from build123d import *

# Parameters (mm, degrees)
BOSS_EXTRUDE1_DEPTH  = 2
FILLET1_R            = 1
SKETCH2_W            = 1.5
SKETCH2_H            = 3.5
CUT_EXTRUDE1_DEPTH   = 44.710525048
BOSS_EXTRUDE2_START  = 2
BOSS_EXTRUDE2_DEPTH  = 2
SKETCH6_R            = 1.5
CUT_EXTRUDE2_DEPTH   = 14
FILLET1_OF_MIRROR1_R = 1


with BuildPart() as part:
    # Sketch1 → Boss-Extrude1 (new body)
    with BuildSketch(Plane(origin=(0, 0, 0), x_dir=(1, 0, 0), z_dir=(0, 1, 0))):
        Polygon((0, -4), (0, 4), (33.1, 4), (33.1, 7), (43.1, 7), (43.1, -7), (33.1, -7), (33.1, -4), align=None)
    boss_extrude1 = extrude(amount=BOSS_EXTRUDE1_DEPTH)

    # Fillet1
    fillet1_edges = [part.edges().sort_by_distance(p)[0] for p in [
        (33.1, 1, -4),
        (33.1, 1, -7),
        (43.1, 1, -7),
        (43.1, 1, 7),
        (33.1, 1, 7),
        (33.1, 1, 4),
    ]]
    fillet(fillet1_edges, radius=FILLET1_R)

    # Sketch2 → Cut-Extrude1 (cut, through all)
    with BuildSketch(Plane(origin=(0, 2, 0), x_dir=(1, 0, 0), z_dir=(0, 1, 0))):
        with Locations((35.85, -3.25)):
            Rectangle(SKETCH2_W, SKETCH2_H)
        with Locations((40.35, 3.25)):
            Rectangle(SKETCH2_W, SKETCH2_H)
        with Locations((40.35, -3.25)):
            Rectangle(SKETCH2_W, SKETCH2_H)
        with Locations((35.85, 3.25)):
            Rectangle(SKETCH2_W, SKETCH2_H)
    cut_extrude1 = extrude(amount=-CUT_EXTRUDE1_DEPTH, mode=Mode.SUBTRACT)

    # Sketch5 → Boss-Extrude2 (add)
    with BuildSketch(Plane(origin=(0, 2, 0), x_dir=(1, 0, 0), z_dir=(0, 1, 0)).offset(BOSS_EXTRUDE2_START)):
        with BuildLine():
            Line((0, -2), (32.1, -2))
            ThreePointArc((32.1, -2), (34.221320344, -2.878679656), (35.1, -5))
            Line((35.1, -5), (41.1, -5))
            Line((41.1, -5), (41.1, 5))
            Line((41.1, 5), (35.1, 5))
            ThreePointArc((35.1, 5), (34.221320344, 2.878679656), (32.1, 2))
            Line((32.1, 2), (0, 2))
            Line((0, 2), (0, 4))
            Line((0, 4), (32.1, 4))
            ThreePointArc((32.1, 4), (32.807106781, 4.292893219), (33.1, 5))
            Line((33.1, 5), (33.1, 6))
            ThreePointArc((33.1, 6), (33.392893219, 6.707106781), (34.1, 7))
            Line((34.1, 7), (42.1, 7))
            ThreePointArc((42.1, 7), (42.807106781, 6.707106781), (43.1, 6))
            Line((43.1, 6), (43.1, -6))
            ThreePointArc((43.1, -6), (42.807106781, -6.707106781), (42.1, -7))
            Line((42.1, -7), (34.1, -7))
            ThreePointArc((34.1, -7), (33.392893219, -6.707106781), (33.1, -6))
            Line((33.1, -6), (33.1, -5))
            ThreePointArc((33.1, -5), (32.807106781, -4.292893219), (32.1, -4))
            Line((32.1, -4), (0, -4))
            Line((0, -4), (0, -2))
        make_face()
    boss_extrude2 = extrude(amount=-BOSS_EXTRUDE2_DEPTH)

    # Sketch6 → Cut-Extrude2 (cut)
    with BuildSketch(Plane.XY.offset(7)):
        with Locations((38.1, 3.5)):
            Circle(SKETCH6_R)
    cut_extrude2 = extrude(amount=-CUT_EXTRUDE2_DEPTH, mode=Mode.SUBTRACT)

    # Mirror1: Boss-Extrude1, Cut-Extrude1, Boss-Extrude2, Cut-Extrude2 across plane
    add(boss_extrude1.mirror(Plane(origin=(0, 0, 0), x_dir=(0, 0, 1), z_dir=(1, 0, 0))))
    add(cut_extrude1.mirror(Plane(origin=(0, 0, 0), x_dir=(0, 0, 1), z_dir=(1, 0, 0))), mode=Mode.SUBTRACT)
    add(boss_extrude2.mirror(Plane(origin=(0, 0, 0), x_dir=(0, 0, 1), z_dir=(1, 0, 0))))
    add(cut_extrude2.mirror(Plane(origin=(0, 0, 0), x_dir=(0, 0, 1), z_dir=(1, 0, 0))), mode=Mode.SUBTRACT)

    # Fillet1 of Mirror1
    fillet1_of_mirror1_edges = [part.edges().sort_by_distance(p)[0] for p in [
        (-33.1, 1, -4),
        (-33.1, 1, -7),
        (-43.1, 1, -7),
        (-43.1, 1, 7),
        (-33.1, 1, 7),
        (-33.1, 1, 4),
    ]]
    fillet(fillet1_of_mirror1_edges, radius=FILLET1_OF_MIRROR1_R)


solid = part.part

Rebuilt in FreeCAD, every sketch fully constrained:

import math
import FreeCAD as App
import Part
import Sketcher

V = App.Vector


def edges_at(feature, points):
    """Names of the edges that pass closest to the given points."""
    edges = feature.Shape.Edges
    near = lambda p: min(range(len(edges)), key=lambda i: edges[i].distToShape(Part.Vertex(*p))[0])
    return sorted({f"Edge{near(p) + 1}" for p in points})

doc = App.newDocument("Part")
body = doc.addObject("PartDesign::Body", "Body")

sketch1 = body.newObject("Sketcher::SketchObject", "Sketch")
sketch1.AttachmentSupport = (doc.getObject("XZ_Plane"), [""])
sketch1.MapMode = "FlatFace"
sketch1.addGeometry([
    Part.LineSegment(V(0, -4, 0), V(0, 4, 0)),
    Part.LineSegment(V(0, 4, 0), V(33.1, 4, 0)),
    Part.LineSegment(V(33.1, 4, 0), V(33.1, 7, 0)),
    Part.LineSegment(V(33.1, 7, 0), V(43.1, 7, 0)),
    Part.LineSegment(V(43.1, 7, 0), V(43.1, -7, 0)),
    Part.LineSegment(V(43.1, -7, 0), V(33.1, -7, 0)),
    Part.LineSegment(V(33.1, -7, 0), V(33.1, -4, 0)),
    Part.LineSegment(V(33.1, -4, 0), V(0, -4, 0)),
], False)
sketch1.addConstraint([
    Sketcher.Constraint("Coincident", 0, 2, 1, 1),
    Sketcher.Constraint("Coincident", 1, 2, 2, 1),
    Sketcher.Constraint("Coincident", 2, 2, 3, 1),
    Sketcher.Constraint("Coincident", 3, 2, 4, 1),
    Sketcher.Constraint("Coincident", 4, 2, 5, 1),
    Sketcher.Constraint("Coincident", 5, 2, 6, 1),
    Sketcher.Constraint("Coincident", 6, 2, 7, 1),
    Sketcher.Constraint("Coincident", 7, 2, 0, 1),
    Sketcher.Constraint("Vertical", 0),
    Sketcher.Constraint("Horizontal", 1),
    Sketcher.Constraint("Vertical", 2),
    Sketcher.Constraint("Horizontal", 3),
    Sketcher.Constraint("Vertical", 4),
    Sketcher.Constraint("Horizontal", 5),
    Sketcher.Constraint("Vertical", 6),
    Sketcher.Constraint("Horizontal", 7),
    Sketcher.Constraint("Symmetric", 0, 2, 7, 2, -1, 1),
    Sketcher.Constraint("Symmetric", 2, 2, 5, 2, -1),
    Sketcher.Constraint("DistanceX", 3, 1, 3, 2, 10.0),
    Sketcher.Constraint("DistanceY", 0, 1, 0, 2, 8.0),
    Sketcher.Constraint("DistanceY", 2, 1, 2, 2, 3.0),
    Sketcher.Constraint("DistanceX", 1, 1, 1, 2, 33.1),
])
pad1 = body.newObject("PartDesign::Pad", "Pad")
pad1.Profile = sketch1
pad1.Length = 2
pad1.Reversed = True
doc.recompute()

fillet = body.newObject("PartDesign::Fillet", "Fillet")
fillet.Base = (pad1, edges_at(pad1, [
    (33.1, 1, -4),
    (33.1, 1, -7),
    (43.1, 1, -7),
    (43.1, 1, 7),
    (33.1, 1, 7),
    (33.1, 1, 4),
]))
fillet.Radius = 1

sketch2 = body.newObject("Sketcher::SketchObject", "Sketch001")
sketch2.AttachmentSupport = (doc.getObject("XZ_Plane"), [""])
sketch2.MapMode = "FlatFace"
sketch2.AttachmentOffset = App.Placement(V(0, 0, -2), App.Rotation())
sketch2.addGeometry([
    Part.LineSegment(V(35.1, 1.5, 0), V(35.1, 5, 0)),
    Part.LineSegment(V(35.1, 5, 0), V(36.6, 5, 0)),
    Part.LineSegment(V(36.6, 5, 0), V(36.6, 1.5, 0)),
    Part.LineSegment(V(36.6, 1.5, 0), V(35.1, 1.5, 0)),
    Part.LineSegment(V(39.6, -5, 0), V(39.6, -1.5, 0)),
    Part.LineSegment(V(39.6, -1.5, 0), V(41.1, -1.5, 0)),
    Part.LineSegment(V(41.1, -1.5, 0), V(41.1, -5, 0)),
    Part.LineSegment(V(41.1, -5, 0), V(39.6, -5, 0)),
    Part.LineSegment(V(39.6, 1.5, 0), V(39.6, 5, 0)),
    Part.LineSegment(V(39.6, 5, 0), V(41.1, 5, 0)),
    Part.LineSegment(V(41.1, 5, 0), V(41.1, 1.5, 0)),
    Part.LineSegment(V(41.1, 1.5, 0), V(39.6, 1.5, 0)),
    Part.LineSegment(V(35.1, -5, 0), V(35.1, -1.5, 0)),
    Part.LineSegment(V(35.1, -1.5, 0), V(36.6, -1.5, 0)),
    Part.LineSegment(V(36.6, -1.5, 0), V(36.6, -5, 0)),
    Part.LineSegment(V(36.6, -5, 0), V(35.1, -5, 0)),
], False)
sketch2.addConstraint([
    Sketcher.Constraint("Coincident", 0, 2, 1, 1),
    Sketcher.Constraint("Coincident", 1, 2, 2, 1),
    Sketcher.Constraint("Coincident", 2, 2, 3, 1),
    Sketcher.Constraint("Coincident", 3, 2, 0, 1),
    Sketcher.Constraint("Coincident", 4, 2, 5, 1),
    Sketcher.Constraint("Coincident", 5, 2, 6, 1),
    Sketcher.Constraint("Coincident", 6, 2, 7, 1),
    Sketcher.Constraint("Coincident", 7, 2, 4, 1),
    Sketcher.Constraint("Coincident", 8, 2, 9, 1),
    Sketcher.Constraint("Coincident", 9, 2, 10, 1),
    Sketcher.Constraint("Coincident", 10, 2, 11, 1),
    Sketcher.Constraint("Coincident", 11, 2, 8, 1),
    Sketcher.Constraint("Coincident", 12, 2, 13, 1),
    Sketcher.Constraint("Coincident", 13, 2, 14, 1),
    Sketcher.Constraint("Coincident", 14, 2, 15, 1),
    Sketcher.Constraint("Coincident", 15, 2, 12, 1),
    Sketcher.Constraint("Vertical", 0),
    Sketcher.Constraint("Horizontal", 1),
    Sketcher.Constraint("Vertical", 2),
    Sketcher.Constraint("Horizontal", 3),
    Sketcher.Constraint("Vertical", 4),
    Sketcher.Constraint("Horizontal", 5),
    Sketcher.Constraint("Vertical", 6),
    Sketcher.Constraint("Horizontal", 7),
    Sketcher.Constraint("Vertical", 8),
    Sketcher.Constraint("Horizontal", 9),
    Sketcher.Constraint("Vertical", 10),
    Sketcher.Constraint("Horizontal", 11),
    Sketcher.Constraint("Vertical", 12),
    Sketcher.Constraint("Horizontal", 13),
    Sketcher.Constraint("Vertical", 14),
    Sketcher.Constraint("Horizontal", 15),
    Sketcher.Constraint("Symmetric", 7, 2, 8, 2, -1),
    Sketcher.Constraint("Symmetric", 5, 2, 10, 2, -1),
    Sketcher.Constraint("Symmetric", 3, 2, 12, 2, -1),
    Sketcher.Constraint("Symmetric", 1, 2, 14, 2, -1),
    Sketcher.Constraint("Horizontal", 1, 2, 8, 2),
    Sketcher.Constraint("Horizontal", 3, 2, 10, 2),
    Sketcher.Constraint("Equal", 3, 5),
    Sketcher.Constraint("DistanceX", 1, 1, 1, 2, 1.5),
    Sketcher.Constraint("DistanceY", 0, 1, 0, 2, 3.5),
    Sketcher.Constraint("DistanceY", -1, 1, 0, 2, 5.0),
    Sketcher.Constraint("DistanceX", 2, 2, 4, 2, 3.0),
    Sketcher.Constraint("DistanceX", -1, 1, 0, 2, 35.1),
])
pocket1 = body.newObject("PartDesign::Pocket", "Pocket")
pocket1.Profile = sketch2
pocket1.Type = "ThroughAll"
pocket1.Reversed = True

sketch3 = body.newObject("Sketcher::SketchObject", "Sketch002")
sketch3.AttachmentSupport = (doc.getObject("XZ_Plane"), [""])
sketch3.MapMode = "FlatFace"
sketch3.AttachmentOffset = App.Placement(V(0, 0, -4), App.Rotation())
sketch3.addGeometry([
    Part.LineSegment(V(32.1, 2, 0), V(0, 2, 0)),
    Part.LineSegment(V(0, 2, 0), V(0, 4, 0)),
    Part.LineSegment(V(0, 4, 0), V(32.1, 4, 0)),
    Part.ArcOfCircle(Part.Circle(V(32.1, 5, 0), V(0, 0, 1), 1), math.radians(-90), math.radians(0)),
    Part.LineSegment(V(33.1, 5, 0), V(33.1, 6, 0)),
    Part.ArcOfCircle(Part.Circle(V(34.1, 6, 0), V(0, 0, 1), 1), math.radians(90), math.radians(180)),
    Part.LineSegment(V(34.1, 7, 0), V(42.1, 7, 0)),
    Part.ArcOfCircle(Part.Circle(V(42.1, 6, 0), V(0, 0, 1), 1), math.radians(0), math.radians(90)),
    Part.LineSegment(V(43.1, 6, 0), V(43.1, -6, 0)),
    Part.ArcOfCircle(Part.Circle(V(42.1, -6, 0), V(0, 0, 1), 1), math.radians(-90), math.radians(0)),
    Part.LineSegment(V(42.1, -7, 0), V(34.1, -7, 0)),
    Part.ArcOfCircle(Part.Circle(V(34.1, -6, 0), V(0, 0, 1), 1), math.radians(-180), math.radians(-90)),
    Part.LineSegment(V(33.1, -6, 0), V(33.1, -5, 0)),
    Part.ArcOfCircle(Part.Circle(V(32.1, -5, 0), V(0, 0, 1), 1), math.radians(0), math.radians(90)),
    Part.LineSegment(V(32.1, -4, 0), V(0, -4, 0)),
    Part.LineSegment(V(0, -4, 0), V(0, -2, 0)),
    Part.LineSegment(V(0, -2, 0), V(32.1, -2, 0)),
    Part.ArcOfCircle(Part.Circle(V(32.1, -5, 0), V(0, 0, 1), 3), math.radians(0), math.radians(90)),
    Part.LineSegment(V(35.1, -5, 0), V(41.1, -5, 0)),
    Part.LineSegment(V(41.1, -5, 0), V(41.1, 5, 0)),
    Part.LineSegment(V(41.1, 5, 0), V(35.1, 5, 0)),
    Part.ArcOfCircle(Part.Circle(V(32.1, 5, 0), V(0, 0, 1), 3), math.radians(-90), math.radians(0)),
], False)
sketch3.addConstraint([
    Sketcher.Constraint("Coincident", 0, 2, 1, 1),
    Sketcher.Constraint("Coincident", 1, 2, 2, 1),
    Sketcher.Constraint("Tangent", 2, 2, 3, 1),
    Sketcher.Constraint("Tangent", 3, 2, 4, 1),
    Sketcher.Constraint("Tangent", 4, 2, 5, 2),
    Sketcher.Constraint("Tangent", 5, 1, 6, 1),
    Sketcher.Constraint("Tangent", 6, 2, 7, 2),
    Sketcher.Constraint("Tangent", 7, 1, 8, 1),
    Sketcher.Constraint("Tangent", 8, 2, 9, 2),
    Sketcher.Constraint("Tangent", 9, 1, 10, 1),
    Sketcher.Constraint("Tangent", 10, 2, 11, 2),
    Sketcher.Constraint("Tangent", 11, 1, 12, 1),
    Sketcher.Constraint("Tangent", 12, 2, 13, 1),
    Sketcher.Constraint("Tangent", 13, 2, 14, 1),
    Sketcher.Constraint("Coincident", 14, 2, 15, 1),
    Sketcher.Constraint("Coincident", 15, 2, 16, 1),
    Sketcher.Constraint("Tangent", 16, 2, 17, 2),
    Sketcher.Constraint("Coincident", 17, 1, 18, 1),
    Sketcher.Constraint("Coincident", 18, 2, 19, 1),
    Sketcher.Constraint("Coincident", 19, 2, 20, 1),
    Sketcher.Constraint("Coincident", 20, 2, 21, 2),
    Sketcher.Constraint("Tangent", 21, 1, 0, 1),
    Sketcher.Constraint("Horizontal", 0),
    Sketcher.Constraint("Vertical", 1),
    Sketcher.Constraint("Horizontal", 2),
    Sketcher.Constraint("Vertical", 4),
    Sketcher.Constraint("Horizontal", 6),
    Sketcher.Constraint("Vertical", 8),
    Sketcher.Constraint("Horizontal", 10),
    Sketcher.Constraint("Vertical", 12),
    Sketcher.Constraint("Horizontal", 14),
    Sketcher.Constraint("Vertical", 15),
    Sketcher.Constraint("Horizontal", 16),
    Sketcher.Constraint("Horizontal", 18),
    Sketcher.Constraint("Vertical", 19),
    Sketcher.Constraint("Horizontal", 20),
    Sketcher.Constraint("Coincident", 17, 3, 13, 3),
    Sketcher.Constraint("Coincident", 21, 3, 3, 3),
    Sketcher.Constraint("Equal", 3, 5),
    Sketcher.Constraint("Equal", 5, 7),
    Sketcher.Constraint("Equal", 7, 9),
    Sketcher.Constraint("Equal", 9, 11),
    Sketcher.Constraint("Equal", 11, 13),
    Sketcher.Constraint("Equal", 17, 21),
    Sketcher.Constraint("Symmetric", 1, 2, 14, 2, -1, 1),
    Sketcher.Constraint("Symmetric", 5, 3, 11, 3, -1),
    Sketcher.Constraint("PointOnObject", 0, 2, -2),
    Sketcher.Constraint("Horizontal", 12, 2, 17, 1),
    Sketcher.Constraint("Horizontal", 3, 2, 19, 2),
    Sketcher.Constraint("Radius", 3, 1.0),
    Sketcher.Constraint("Radius", 17, 3.0),
    Sketcher.Constraint("DistanceX", 6, 1, 6, 2, 8.0),
    Sketcher.Constraint("DistanceX", 18, 1, 18, 2, 6.0),
    Sketcher.Constraint("DistanceY", 4, 1, 4, 2, 1.0),
    Sketcher.Constraint("DistanceY", 8, 2, 8, 1, 12.0),
    Sketcher.Constraint("DistanceX", 0, 2, 0, 1, 32.1),
])
pad2 = body.newObject("PartDesign::Pad", "Pad001")
pad2.Profile = sketch3
pad2.Length = 2

sketch4 = body.newObject("Sketcher::SketchObject", "Sketch003")
sketch4.AttachmentSupport = (doc.getObject("XY_Plane"), [""])
sketch4.MapMode = "FlatFace"
sketch4.AttachmentOffset = App.Placement(V(0, 0, 7), App.Rotation())
sketch4.addGeometry(Part.Circle(V(38.1, 3.5, 0), V(0, 0, 1), 1.5), False)
sketch4.addConstraint([
    Sketcher.Constraint("Diameter", 0, 3.0),
    Sketcher.Constraint("DistanceX", -1, 1, 0, 3, 38.1),
    Sketcher.Constraint("DistanceY", -1, 1, 0, 3, 3.5),
])
pocket2 = body.newObject("PartDesign::Pocket", "Pocket001")
pocket2.Profile = sketch4
pocket2.Length = 14
doc.recompute()

mirrored = body.newObject("PartDesign::Mirrored", "Mirrored")
mirrored.Originals = [pad1, pocket1, pad2, pocket2]
mirrored.MirrorPlane = (doc.getObject("YZ_Plane"), [""])
body.Tip = mirrored
doc.recompute()

fillet2 = body.newObject("PartDesign::Fillet", "Fillet001")
fillet2.Base = (mirrored, edges_at(mirrored, [
    (-33.1, 1, -4),
    (-33.1, 1, -7),
    (-43.1, 1, -7),
    (-43.1, 1, 7),
    (-33.1, 1, 7),
    (-33.1, 1, 4),
]))
fillet2.Radius = 1

doc.recompute()
